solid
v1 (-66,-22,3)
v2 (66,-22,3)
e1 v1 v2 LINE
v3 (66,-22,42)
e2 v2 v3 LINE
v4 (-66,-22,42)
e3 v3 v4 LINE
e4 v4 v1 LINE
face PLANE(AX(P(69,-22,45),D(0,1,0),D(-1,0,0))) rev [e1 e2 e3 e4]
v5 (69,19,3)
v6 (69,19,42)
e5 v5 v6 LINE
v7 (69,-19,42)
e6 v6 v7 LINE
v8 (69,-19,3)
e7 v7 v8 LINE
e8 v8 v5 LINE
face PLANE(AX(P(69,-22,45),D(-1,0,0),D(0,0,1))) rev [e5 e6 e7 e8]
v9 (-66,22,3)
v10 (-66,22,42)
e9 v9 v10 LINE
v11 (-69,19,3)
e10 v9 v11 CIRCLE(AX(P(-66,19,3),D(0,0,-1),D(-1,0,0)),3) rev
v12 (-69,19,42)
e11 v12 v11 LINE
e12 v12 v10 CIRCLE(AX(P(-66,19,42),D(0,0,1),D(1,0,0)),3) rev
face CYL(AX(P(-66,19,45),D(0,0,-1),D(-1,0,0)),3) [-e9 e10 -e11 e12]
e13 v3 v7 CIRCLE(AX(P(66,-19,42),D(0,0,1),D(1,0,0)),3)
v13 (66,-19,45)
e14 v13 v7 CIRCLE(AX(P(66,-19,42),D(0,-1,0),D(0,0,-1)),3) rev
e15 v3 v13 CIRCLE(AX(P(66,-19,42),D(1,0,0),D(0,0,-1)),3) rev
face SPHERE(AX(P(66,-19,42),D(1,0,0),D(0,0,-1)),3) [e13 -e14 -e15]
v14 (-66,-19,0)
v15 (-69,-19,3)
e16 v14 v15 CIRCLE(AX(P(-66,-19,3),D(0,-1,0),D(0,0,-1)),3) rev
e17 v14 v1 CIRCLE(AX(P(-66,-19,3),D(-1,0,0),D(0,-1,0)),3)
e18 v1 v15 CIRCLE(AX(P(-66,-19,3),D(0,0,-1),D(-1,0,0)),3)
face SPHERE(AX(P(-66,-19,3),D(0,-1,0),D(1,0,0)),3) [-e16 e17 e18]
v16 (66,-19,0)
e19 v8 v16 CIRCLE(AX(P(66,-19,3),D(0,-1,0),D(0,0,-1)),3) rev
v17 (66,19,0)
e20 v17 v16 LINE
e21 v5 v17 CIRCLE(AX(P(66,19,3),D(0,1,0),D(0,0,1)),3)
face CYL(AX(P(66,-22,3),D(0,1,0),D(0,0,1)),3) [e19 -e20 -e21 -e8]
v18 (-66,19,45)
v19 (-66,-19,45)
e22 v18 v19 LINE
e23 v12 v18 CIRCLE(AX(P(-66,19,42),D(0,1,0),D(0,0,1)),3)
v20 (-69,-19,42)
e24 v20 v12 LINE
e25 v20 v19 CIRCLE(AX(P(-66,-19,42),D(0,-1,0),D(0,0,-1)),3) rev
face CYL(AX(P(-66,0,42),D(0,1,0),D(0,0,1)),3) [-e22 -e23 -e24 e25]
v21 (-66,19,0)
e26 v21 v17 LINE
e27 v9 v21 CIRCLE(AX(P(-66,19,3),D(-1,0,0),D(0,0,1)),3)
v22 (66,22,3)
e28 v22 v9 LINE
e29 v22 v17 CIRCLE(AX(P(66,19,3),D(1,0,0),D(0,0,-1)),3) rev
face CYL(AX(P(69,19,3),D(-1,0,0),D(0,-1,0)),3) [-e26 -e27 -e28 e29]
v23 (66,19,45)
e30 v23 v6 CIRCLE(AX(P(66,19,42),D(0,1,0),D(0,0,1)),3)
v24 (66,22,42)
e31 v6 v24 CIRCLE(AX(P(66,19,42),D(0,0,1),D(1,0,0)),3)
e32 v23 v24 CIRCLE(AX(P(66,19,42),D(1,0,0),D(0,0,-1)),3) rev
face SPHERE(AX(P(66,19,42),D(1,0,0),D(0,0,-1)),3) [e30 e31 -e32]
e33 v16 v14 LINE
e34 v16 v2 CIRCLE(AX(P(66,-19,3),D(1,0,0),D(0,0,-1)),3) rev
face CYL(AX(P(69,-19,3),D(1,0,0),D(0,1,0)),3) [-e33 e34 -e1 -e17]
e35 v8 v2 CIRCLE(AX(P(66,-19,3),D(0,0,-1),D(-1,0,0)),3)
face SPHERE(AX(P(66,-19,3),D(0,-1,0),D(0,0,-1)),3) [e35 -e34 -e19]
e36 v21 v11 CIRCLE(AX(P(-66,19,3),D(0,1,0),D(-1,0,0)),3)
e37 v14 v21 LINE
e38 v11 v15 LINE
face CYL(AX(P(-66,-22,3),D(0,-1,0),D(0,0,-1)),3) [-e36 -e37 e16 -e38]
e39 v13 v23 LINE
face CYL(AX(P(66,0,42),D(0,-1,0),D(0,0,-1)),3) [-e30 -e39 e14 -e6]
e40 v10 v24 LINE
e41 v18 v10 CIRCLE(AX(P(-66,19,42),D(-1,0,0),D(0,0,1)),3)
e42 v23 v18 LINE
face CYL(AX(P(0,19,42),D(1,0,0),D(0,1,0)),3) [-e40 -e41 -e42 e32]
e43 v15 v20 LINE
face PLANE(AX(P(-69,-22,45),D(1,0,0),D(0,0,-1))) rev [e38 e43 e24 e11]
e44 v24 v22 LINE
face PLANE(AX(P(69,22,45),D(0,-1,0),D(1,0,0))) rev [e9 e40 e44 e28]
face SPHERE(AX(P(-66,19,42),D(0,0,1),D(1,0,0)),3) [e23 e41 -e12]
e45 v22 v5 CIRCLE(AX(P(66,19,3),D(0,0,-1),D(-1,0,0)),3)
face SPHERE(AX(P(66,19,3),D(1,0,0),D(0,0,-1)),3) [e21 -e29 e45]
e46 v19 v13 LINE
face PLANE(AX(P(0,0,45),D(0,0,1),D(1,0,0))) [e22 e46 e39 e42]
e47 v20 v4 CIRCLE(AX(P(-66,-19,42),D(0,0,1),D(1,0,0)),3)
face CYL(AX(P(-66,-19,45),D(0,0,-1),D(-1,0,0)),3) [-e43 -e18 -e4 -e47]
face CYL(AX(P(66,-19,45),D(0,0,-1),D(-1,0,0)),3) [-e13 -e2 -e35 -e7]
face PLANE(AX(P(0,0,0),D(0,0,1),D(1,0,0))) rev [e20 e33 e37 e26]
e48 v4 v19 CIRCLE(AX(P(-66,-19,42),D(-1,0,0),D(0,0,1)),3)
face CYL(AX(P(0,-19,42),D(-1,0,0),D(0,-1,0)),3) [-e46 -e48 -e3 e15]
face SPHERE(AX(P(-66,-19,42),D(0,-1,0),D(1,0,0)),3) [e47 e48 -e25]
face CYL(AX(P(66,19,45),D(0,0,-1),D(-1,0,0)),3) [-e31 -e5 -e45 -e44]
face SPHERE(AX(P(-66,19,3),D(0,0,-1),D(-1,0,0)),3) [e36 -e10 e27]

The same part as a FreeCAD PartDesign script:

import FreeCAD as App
import Part
import Sketcher
Q = App.Units.Quantity

doc = App.newDocument("Part")
body = doc.addObject("PartDesign::Body", "Body")

# Sketch on XY plane
sketch1 = body.newObject("Sketcher::SketchObject", "Sketch")
sketch1.AttachmentSupport = (doc.getObject("XY_Plane"), [""])
sketch1.MapMode = "FlatFace"
sketch1.addGeometry([
    Part.LineSegment(App.Vector(-69, 22, 0), App.Vector(-69, -22, 0)),
    Part.LineSegment(App.Vector(-69, -22, 0), App.Vector(69, -22, 0)),
    Part.LineSegment(App.Vector(69, -22, 0), App.Vector(69, 22, 0)),
    Part.LineSegment(App.Vector(69, 22, 0), App.Vector(-69, 22, 0)),
], False)
sketch1.addConstraint([
    Sketcher.Constraint("Coincident", 0, 2, 1, 1),
    Sketcher.Constraint("Coincident", 1, 2, 2, 1),
    Sketcher.Constraint("Coincident", 2, 2, 3, 1),
    Sketcher.Constraint("Coincident", 3, 2, 0, 1),
    Sketcher.Constraint("Vertical", 0),
    Sketcher.Constraint("Horizontal", 1),
    Sketcher.Constraint("Vertical", 2),
    Sketcher.Constraint("Horizontal", 3),
    Sketcher.Constraint("Symmetric", 0, 2, 2, 2, -1, 1),
    Sketcher.Constraint("DistanceX", 1, 1, 1, 2, Q("138 mm")),
    Sketcher.Constraint("DistanceY", 0, 2, 0, 1, Q("44 mm")),
])
pad1 = body.newObject("PartDesign::Pad", "Pad")
pad1.Profile = sketch1
pad1.Length = 45
doc.recompute()

fillet = body.newObject("PartDesign::Fillet", "Fillet")
fillet.Base = (pad1, ["Edge1"])
fillet.UseAllEdges = True
fillet.Radius = 3

doc.recompute()
